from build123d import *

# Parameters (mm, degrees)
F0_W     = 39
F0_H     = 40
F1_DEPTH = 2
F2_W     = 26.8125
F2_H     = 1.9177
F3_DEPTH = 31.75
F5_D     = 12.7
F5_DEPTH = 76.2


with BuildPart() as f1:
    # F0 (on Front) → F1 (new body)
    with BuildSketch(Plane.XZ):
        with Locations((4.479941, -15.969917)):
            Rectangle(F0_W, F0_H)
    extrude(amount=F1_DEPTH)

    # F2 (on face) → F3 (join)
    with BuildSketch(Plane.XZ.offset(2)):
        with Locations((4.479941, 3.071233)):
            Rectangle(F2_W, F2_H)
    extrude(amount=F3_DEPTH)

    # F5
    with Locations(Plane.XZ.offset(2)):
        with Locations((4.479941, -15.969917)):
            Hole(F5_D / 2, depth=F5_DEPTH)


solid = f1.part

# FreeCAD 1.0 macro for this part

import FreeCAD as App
import Part
import Sketcher
Q = App.Units.Quantity

doc = App.newDocument("Part")
body = doc.addObject("PartDesign::Body", "Body")

# Sketch on XZ plane
sketch1 = body.newObject("Sketcher::SketchObject", "Sketch")
sketch1.AttachmentSupport = (doc.getObject("XZ_Plane"), [""])
sketch1.MapMode = "FlatFace"
sketch1.addGeometry([
    Part.LineSegment(App.Vector(-15, 4, 0), App.Vector(-15, -36, 0)),
    Part.LineSegment(App.Vector(-15, -36, 0), App.Vector(24, -36, 0)),
    Part.LineSegment(App.Vector(24, -36, 0), App.Vector(24, 4, 0)),
    Part.LineSegment(App.Vector(24, 4, 0), App.Vector(-15, 4, 0)),
], False)
sketch1.addConstraint([
    Sketcher.Constraint("Coincident", 0, 2, 1, 1),
    Sketcher.Constraint("Coincident", 1, 2, 2, 1),
    Sketcher.Constraint("Coincident", 2, 2, 3, 1),
    Sketcher.Constraint("Coincident", 3, 2, 0, 1),
    Sketcher.Constraint("Vertical", 0),
    Sketcher.Constraint("Horizontal", 1),
    Sketcher.Constraint("Vertical", 2),
    Sketcher.Constraint("Horizontal", 3),
    Sketcher.Constraint("DistanceX", 1, 1, 1, 2, Q("39 mm")),
    Sketcher.Constraint("DistanceY", 0, 2, 0, 1, Q("40 mm")),
    Sketcher.Constraint("DistanceX", 0, 2, -1, 1, Q("15.020059 mm")),
    Sketcher.Constraint("DistanceY", 0, 2, -1, 1, Q("35.969917 mm")),
])
pad1 = body.newObject("PartDesign::Pad", "Pad")
pad1.Profile = sketch1
pad1.Length = 2

# Sketch on XZ plane
sketch2 = body.newObject("Sketcher::SketchObject", "Sketch001")
sketch2.AttachmentSupport = (doc.getObject("XZ_Plane"), [""])
sketch2.MapMode = "FlatFace"
sketch2.AttachmentOffset = App.Placement(App.Vector(0, 0, 2), App.Rotation())
sketch2.addGeometry([
    Part.LineSegment(App.Vector(-8.9, 4, 0), App.Vector(-8.9, 2.1, 0)),
    Part.LineSegment(App.Vector(-8.9, 2.1, 0), App.Vector(17.9, 2.1, 0)),
    Part.LineSegment(App.Vector(17.9, 2.1, 0), App.Vector(17.9, 4, 0)),
    Part.LineSegment(App.Vector(17.9, 4, 0), App.Vector(-8.9, 4, 0)),
], False)
sketch2.addConstraint([
    Sketcher.Constraint("Coincident", 0, 2, 1, 1),
    Sketcher.Constraint("Coincident", 1, 2, 2, 1),
    Sketcher.Constraint("Coincident", 2, 2, 3, 1),
    Sketcher.Constraint("Coincident", 3, 2, 0, 1),
    Sketcher.Constraint("Vertical", 0),
    Sketcher.Constraint("Horizontal", 1),
    Sketcher.Constraint("Vertical", 2),
    Sketcher.Constraint("Horizontal", 3),
    Sketcher.Constraint("DistanceX", 1, 1, 1, 2, Q("26.8125 mm")),
    Sketcher.Constraint("DistanceY", 0, 2, 0, 1, Q("1.9177 mm")),
    Sketcher.Constraint("DistanceX", 0, 2, -1, 1, Q("8.926309 mm")),
    Sketcher.Constraint("DistanceY", -1, 1, 0, 2, Q("2.112383 mm")),
])
pad2 = body.newObject("PartDesign::Pad", "Pad001")
pad2.Profile = sketch2
pad2.Length = 31.75

# Sketch on XZ plane
sketch3 = body.newObject("Sketcher::SketchObject", "Sketch002")
sketch3.AttachmentSupport = (doc.getObject("XZ_Plane"), [""])
sketch3.MapMode = "FlatFace"
sketch3.AttachmentOffset = App.Placement(App.Vector(0, 0, 2), App.Rotation())
sketch3.addGeometry(Part.Circle(App.Vector(4, -16, 0), App.Vector(0, 0, 1), 6), False)
sketch3.addConstraint([
    Sketcher.Constraint("Diameter", 0, Q("12.7 mm")),
    Sketcher.Constraint("DistanceX", -1, 1, 0, 3, Q("4.479941 mm")),
    Sketcher.Constraint("DistanceY", 0, 3, -1, 1, Q("15.969917 mm")),
])
doc.recompute()
hole = body.newObject("PartDesign::Hole", "Hole")
hole.Profile = sketch3
hole.ThreadType = "None"
hole.Diameter = 12.7
hole.DepthType = "Dimension"
hole.Depth = 76.2
hole.DrillPoint = "Flat"

doc.recompute()
